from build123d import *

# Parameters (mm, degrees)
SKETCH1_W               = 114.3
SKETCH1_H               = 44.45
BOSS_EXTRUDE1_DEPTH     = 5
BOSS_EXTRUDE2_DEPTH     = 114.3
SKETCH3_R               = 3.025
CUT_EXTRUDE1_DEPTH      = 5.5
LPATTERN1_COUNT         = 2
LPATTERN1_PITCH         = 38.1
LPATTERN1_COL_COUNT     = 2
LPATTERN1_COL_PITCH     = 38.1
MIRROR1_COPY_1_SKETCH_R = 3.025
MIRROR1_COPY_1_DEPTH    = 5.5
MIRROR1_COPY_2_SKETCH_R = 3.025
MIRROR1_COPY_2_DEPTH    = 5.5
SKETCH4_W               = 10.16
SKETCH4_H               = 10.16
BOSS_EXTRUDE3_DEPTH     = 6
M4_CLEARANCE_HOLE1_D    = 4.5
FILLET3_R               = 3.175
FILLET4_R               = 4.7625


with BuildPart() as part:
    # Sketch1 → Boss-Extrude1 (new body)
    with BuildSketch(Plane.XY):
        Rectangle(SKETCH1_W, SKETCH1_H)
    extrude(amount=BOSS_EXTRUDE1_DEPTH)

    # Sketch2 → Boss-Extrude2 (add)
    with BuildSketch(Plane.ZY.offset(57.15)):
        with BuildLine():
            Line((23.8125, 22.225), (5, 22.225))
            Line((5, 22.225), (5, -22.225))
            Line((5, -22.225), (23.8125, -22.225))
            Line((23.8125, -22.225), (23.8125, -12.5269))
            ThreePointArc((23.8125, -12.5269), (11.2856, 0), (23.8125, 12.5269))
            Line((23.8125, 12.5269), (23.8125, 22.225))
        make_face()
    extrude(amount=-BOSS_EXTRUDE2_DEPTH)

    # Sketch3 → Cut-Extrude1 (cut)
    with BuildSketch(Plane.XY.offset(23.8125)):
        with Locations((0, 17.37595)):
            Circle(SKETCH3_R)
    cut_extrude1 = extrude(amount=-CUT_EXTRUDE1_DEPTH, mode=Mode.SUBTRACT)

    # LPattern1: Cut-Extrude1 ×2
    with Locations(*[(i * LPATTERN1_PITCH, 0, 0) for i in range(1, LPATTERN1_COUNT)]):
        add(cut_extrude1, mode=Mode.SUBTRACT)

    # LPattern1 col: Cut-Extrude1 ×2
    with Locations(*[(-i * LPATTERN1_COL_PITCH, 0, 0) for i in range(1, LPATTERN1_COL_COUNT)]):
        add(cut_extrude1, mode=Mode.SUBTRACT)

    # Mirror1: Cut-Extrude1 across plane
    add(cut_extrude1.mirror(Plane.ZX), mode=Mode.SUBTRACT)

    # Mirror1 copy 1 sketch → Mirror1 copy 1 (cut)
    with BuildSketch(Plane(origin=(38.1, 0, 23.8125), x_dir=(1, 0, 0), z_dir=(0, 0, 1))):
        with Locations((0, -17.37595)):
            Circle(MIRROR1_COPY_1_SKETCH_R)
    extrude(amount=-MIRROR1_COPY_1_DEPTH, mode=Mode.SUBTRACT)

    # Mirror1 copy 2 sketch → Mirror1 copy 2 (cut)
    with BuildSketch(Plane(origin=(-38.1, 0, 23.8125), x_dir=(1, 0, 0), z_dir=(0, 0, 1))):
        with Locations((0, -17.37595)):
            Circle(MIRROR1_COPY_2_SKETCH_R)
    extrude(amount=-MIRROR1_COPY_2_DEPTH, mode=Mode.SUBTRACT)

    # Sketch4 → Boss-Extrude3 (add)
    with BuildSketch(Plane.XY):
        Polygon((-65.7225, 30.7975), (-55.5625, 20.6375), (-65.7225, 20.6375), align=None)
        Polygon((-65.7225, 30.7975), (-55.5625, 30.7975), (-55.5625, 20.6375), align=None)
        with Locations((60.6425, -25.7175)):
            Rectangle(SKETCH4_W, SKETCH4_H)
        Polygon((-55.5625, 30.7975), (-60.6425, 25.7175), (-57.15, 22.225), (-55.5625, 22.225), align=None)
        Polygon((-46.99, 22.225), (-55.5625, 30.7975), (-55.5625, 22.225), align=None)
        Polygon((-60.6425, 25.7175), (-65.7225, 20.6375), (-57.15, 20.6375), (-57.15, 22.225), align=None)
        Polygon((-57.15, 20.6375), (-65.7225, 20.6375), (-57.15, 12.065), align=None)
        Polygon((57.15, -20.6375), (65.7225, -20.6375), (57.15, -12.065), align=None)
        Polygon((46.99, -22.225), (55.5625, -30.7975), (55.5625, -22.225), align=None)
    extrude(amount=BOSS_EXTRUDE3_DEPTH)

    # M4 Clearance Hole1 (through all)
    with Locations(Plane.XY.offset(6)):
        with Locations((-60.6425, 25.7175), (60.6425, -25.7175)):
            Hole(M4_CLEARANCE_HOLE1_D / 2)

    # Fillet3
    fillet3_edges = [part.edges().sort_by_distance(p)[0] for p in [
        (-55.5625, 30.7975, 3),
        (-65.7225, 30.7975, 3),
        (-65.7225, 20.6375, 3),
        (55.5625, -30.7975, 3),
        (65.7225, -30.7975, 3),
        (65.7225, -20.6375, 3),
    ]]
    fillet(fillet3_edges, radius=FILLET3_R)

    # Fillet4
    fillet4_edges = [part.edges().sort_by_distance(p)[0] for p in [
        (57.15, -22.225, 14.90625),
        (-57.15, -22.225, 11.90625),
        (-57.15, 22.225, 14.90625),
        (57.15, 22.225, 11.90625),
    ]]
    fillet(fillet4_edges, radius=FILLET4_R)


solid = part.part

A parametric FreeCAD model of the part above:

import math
import FreeCAD as App
import Part
import Sketcher
from FreeCAD import Vector
Q = App.Units.Quantity


def edges_at(feature, points):
    """Names of the edges that pass closest to the given points."""
    edges = feature.Shape.Edges
    near = lambda p: min(range(len(edges)), key=lambda i: edges[i].distToShape(Part.Vertex(*p))[0])
    return sorted({f"Edge{near(p) + 1}" for p in points})

doc = App.newDocument("Part")
body = doc.addObject("PartDesign::Body", "Body")

# Sketch on XY plane
sketch1 = body.newObject("Sketcher::SketchObject", "Sketch")
sketch1.AttachmentSupport = (doc.getObject("XY_Plane"), [""])
sketch1.MapMode = "FlatFace"
sketch1.addGeometry([
    Part.LineSegment(Vector(-57, 22, 0), Vector(-57, -22, 0)),
    Part.LineSegment(Vector(-57, -22, 0), Vector(57, -22, 0)),
    Part.LineSegment(Vector(57, -22, 0), Vector(57, 22, 0)),
    Part.LineSegment(Vector(57, 22, 0), Vector(-57, 22, 0)),
], False)
sketch1.addConstraint([
    Sketcher.Constraint("Coincident", 0, 2, 1, 1),
    Sketcher.Constraint("Coincident", 1, 2, 2, 1),
    Sketcher.Constraint("Coincident", 2, 2, 3, 1),
    Sketcher.Constraint("Coincident", 3, 2, 0, 1),
    Sketcher.Constraint("Vertical", 0),
    Sketcher.Constraint("Horizontal", 1),
    Sketcher.Constraint("Vertical", 2),
    Sketcher.Constraint("Horizontal", 3),
    Sketcher.Constraint("Symmetric", 0, 2, 2, 2, -1, 1),
    Sketcher.Constraint("DistanceX", 1, 1, 1, 2, Q("4.5 in")),
    Sketcher.Constraint("DistanceY", 0, 2, 0, 1, Q("1.75 in")),
])
pad1 = body.newObject("PartDesign::Pad", "Pad")
pad1.Profile = sketch1
pad1.Length = 5

# Sketch on YZ plane
sketch2 = body.newObject("Sketcher::SketchObject", "Sketch001")
sketch2.AttachmentSupport = (doc.getObject("YZ_Plane"), [""])
sketch2.MapMode = "FlatFace"
sketch2.AttachmentOffset = App.Placement(Vector(0, 0, -2.25 * 25.4), App.Rotation())
sketch2.addGeometry([
    Part.LineSegment(Vector(22, 24, 0), Vector(22, 5, 0)),  # 0
    Part.LineSegment(Vector(22, 5, 0), Vector(-22, 5, 0)),  # 1
    Part.LineSegment(Vector(-22, 5, 0), Vector(-22, 24, 0)),  # 2
    Part.LineSegment(Vector(-22, 24, 0), Vector(-13, 24, 0)),  # 3
    Part.ArcOfCircle(Part.Circle(Vector(0, 24, 0), Vector(0, 0, 1), 13), math.radians(180), math.radians(360)),  # 4
    Part.LineSegment(Vector(13, 24, 0), Vector(22, 24, 0)),  # 5
], False)
sketch2.addConstraint([
    Sketcher.Constraint("Coincident", 0, 2, 1, 1),
    Sketcher.Constraint("Coincident", 1, 2, 2, 1),
    Sketcher.Constraint("Coincident", 2, 2, 3, 1),
    Sketcher.Constraint("Coincident", 3, 2, 4, 1),
    Sketcher.Constraint("Coincident", 4, 2, 5, 1),
    Sketcher.Constraint("Coincident", 5, 2, 0, 1),
    Sketcher.Constraint("Vertical", 0),
    Sketcher.Constraint("Horizontal", 1),
    Sketcher.Constraint("Vertical", 2),
    Sketcher.Constraint("Horizontal", 3),
    Sketcher.Constraint("Horizontal", 5),
    Sketcher.Constraint("Symmetric", 3, 2, 4, 2, -2),
    Sketcher.Constraint("Horizontal", 4, 3, 2, 2),
    Sketcher.Constraint("Equal", 3, 5),
    Sketcher.Constraint("DistanceX", 1, 2, 1, 1, Q("1.75 in")),
    Sketcher.Constraint("Radius", 4, 12.5269),
    Sketcher.Constraint("DistanceY", -1, 1, 4, 3, Q("0.9375 in")),
    Sketcher.Constraint("DistanceY", 0, 2, 0, 1, 18.8125),
])
pad2 = body.newObject("PartDesign::Pad", "Pad001")
pad2.Profile = sketch2
pad2.Length = Q("4.5 in")

# Sketch on XY plane
sketch3 = body.newObject("Sketcher::SketchObject", "Sketch002")
sketch3.AttachmentSupport = (doc.getObject("XY_Plane"), [""])
sketch3.MapMode = "FlatFace"
sketch3.AttachmentOffset = App.Placement(Vector(0, 0, 0.9375 * 25.4), App.Rotation())
sketch3.addGeometry(Part.Circle(Vector(0, 17.4, 0), Vector(0, 0, 1), 3), False)
sketch3.addConstraint([
    Sketcher.Constraint("PointOnObject", 0, 3, -2),
    Sketcher.Constraint("Diameter", 0, 6.05),
    Sketcher.Constraint("DistanceY", -1, 1, 0, 3, 17.37595),
])
pocket1 = body.newObject("PartDesign::Pocket", "Pocket")
pocket1.Profile = sketch3
pocket1.Length = 5.5
doc.recompute()

linearpattern = body.newObject("PartDesign::LinearPattern", "LinearPattern")
linearpattern.Originals = [pocket1]
linearpattern.Direction = (doc.getObject("X_Axis"), [""])
linearpattern.Mode = "offset"
linearpattern.Offset = Q("1.5 in")
linearpattern.Occurrences = 2
body.Tip = linearpattern
doc.recompute()

linearpattern2 = body.newObject("PartDesign::LinearPattern", "LinearPattern001")
linearpattern2.Originals = [pocket1]
linearpattern2.Direction = (doc.getObject("X_Axis"), [""])
linearpattern2.Mode = "offset"
linearpattern2.Offset = Q("1.5 in")
linearpattern2.Occurrences = 2
linearpattern2.Reversed = True
body.Tip = linearpattern2
doc.recompute()

mirrored = body.newObject("PartDesign::Mirrored", "Mirrored")
mirrored.Originals = [pocket1]
mirrored.MirrorPlane = (doc.getObject("XZ_Plane"), [""])
body.Tip = mirrored

# Sketch on XY plane
sketch4 = body.newObject("Sketcher::SketchObject", "Sketch003")
sketch4.AttachmentSupport = (doc.getObject("XY_Plane"), [""])
sketch4.MapMode = "FlatFace"
sketch4.AttachmentOffset = App.Placement(Vector(0, 0, 0.9375 * 25.4), App.Rotation())
sketch4.addGeometry(Part.Circle(Vector(38.1, -17.4, 0), Vector(0, 0, 1), 3), False)
sketch4.addConstraint([
    Sketcher.Constraint("DistanceX", -1, 1, 0, 3, Q("1.5 in")),
    Sketcher.Constraint("Diameter", 0, 6.05),
    Sketcher.Constraint("DistanceY", 0, 3, -1, 1, 17.37595),
])
pocket2 = body.newObject("PartDesign::Pocket", "Pocket001")
pocket2.Profile = sketch4
pocket2.Length = 5.5

# Sketch on XY plane
sketch5 = body.newObject("Sketcher::SketchObject", "Sketch004")
sketch5.AttachmentSupport = (doc.getObject("XY_Plane"), [""])
sketch5.MapMode = "FlatFace"
sketch5.AttachmentOffset = App.Placement(Vector(0, 0, 0.9375 * 25.4), App.Rotation())
sketch5.addGeometry(Part.Circle(Vector(-38.1, -17.4, 0), Vector(0, 0, 1), 3), False)
sketch5.addConstraint([
    Sketcher.Constraint("DistanceX", 0, 3, -1, 1, Q("1.5 in")),
    Sketcher.Constraint("Diameter", 0, 6.05),
    Sketcher.Constraint("DistanceY", 0, 3, -1, 1, 17.37595),
])
pocket3 = body.newObject("PartDesign::Pocket", "Pocket002")
pocket3.Profile = sketch5
pocket3.Length = 5.5

# Sketch on XY plane
sketch6 = body.newObject("Sketcher::SketchObject", "Sketch005")
sketch6.AttachmentSupport = (doc.getObject("XY_Plane"), [""])
sketch6.MapMode = "FlatFace"
sketch6.addGeometry([
    Part.LineSegment(Vector(-55.6, 20.6, 0), Vector(-55.6, 22.2, 0)),  # 0
    Part.LineSegment(Vector(-55.6, 22.2, 0), Vector(-47, 22.2, 0)),  # 1
    Part.LineSegment(Vector(-47, 22.2, 0), Vector(-55.6, 30.8, 0)),  # 2
    Part.LineSegment(Vector(-55.6, 30.8, 0), Vector(-65.7, 30.8, 0)),  # 3
    Part.LineSegment(Vector(-65.7, 30.8, 0), Vector(-65.7, 20.6, 0)),  # 4
    Part.LineSegment(Vector(-65.7, 20.6, 0), Vector(-57.1, 12.1, 0)),  # 5
    Part.LineSegment(Vector(-57.1, 12.1, 0), Vector(-57.1, 20.6, 0)),  # 6
    Part.LineSegment(Vector(-57.1, 20.6, 0), Vector(-55.6, 20.6, 0)),  # 7
    Part.LineSegment(Vector(55.6, -20.6, 0), Vector(55.6, -22.2, 0)),  # 8
    Part.LineSegment(Vector(55.6, -22.2, 0), Vector(47, -22.2, 0)),  # 9
    Part.LineSegment(Vector(47, -22.2, 0), Vector(55.6, -30.8, 0)),  # 10
    Part.LineSegment(Vector(55.6, -30.8, 0), Vector(65.7, -30.8, 0)),  # 11
    Part.LineSegment(Vector(65.7, -30.8, 0), Vector(65.7, -20.6, 0)),  # 12
    Part.LineSegment(Vector(65.7, -20.6, 0), Vector(57.1, -12.1, 0)),  # 13
    Part.LineSegment(Vector(57.1, -12.1, 0), Vector(57.1, -20.6, 0)),  # 14
    Part.LineSegment(Vector(57.1, -20.6, 0), Vector(55.6, -20.6, 0)),  # 15
], False)
sketch6.addConstraint([
    Sketcher.Constraint("Coincident", 0, 2, 1, 1),
    Sketcher.Constraint("Coincident", 1, 2, 2, 1),
    Sketcher.Constraint("Coincident", 2, 2, 3, 1),
    Sketcher.Constraint("Coincident", 3, 2, 4, 1),
    Sketcher.Constraint("Coincident", 4, 2, 5, 1),
    Sketcher.Constraint("Coincident", 5, 2, 6, 1),
    Sketcher.Constraint("Coincident", 6, 2, 7, 1),
    Sketcher.Constraint("Coincident", 7, 2, 0, 1),
    Sketcher.Constraint("Coincident", 8, 2, 9, 1),
    Sketcher.Constraint("Coincident", 9, 2, 10, 1),
    Sketcher.Constraint("Coincident", 10, 2, 11, 1),
    Sketcher.Constraint("Coincident", 11, 2, 12, 1),
    Sketcher.Constraint("Coincident", 12, 2, 13, 1),
    Sketcher.Constraint("Coincident", 13, 2, 14, 1),
    Sketcher.Constraint("Coincident", 14, 2, 15, 1),
    Sketcher.Constraint("Coincident", 15, 2, 8, 1),
    Sketcher.Constraint("Vertical", 0),
    Sketcher.Constraint("Horizontal", 1),
    Sketcher.Constraint("Horizontal", 3),
    Sketcher.Constraint("Vertical", 4),
    Sketcher.Constraint("Vertical", 6),
    Sketcher.Constraint("Horizontal", 7),
    Sketcher.Constraint("Vertical", 8),
    Sketcher.Constraint("Horizontal", 9),
    Sketcher.Constraint("Horizontal", 11),
    Sketcher.Constraint("Vertical", 12),
    Sketcher.Constraint("Vertical", 14),
    Sketcher.Constraint("Horizontal", 15),
    Sketcher.Constraint("Symmetric", 0, 2, 8, 2, -1, 1),
    Sketcher.Constraint("Symmetric", 2, 2, 10, 2, -1, 1),
    Sketcher.Constraint("Symmetric", 4, 2, 12, 2, -1, 1),
    Sketcher.Constraint("Symmetric", 5, 2, 13, 2, -1, 1),
    Sketcher.Constraint("Parallel", 2, 5),
    Sketcher.Constraint("Parallel", 5, 10),
    Sketcher.Constraint("Horizontal", 4, 2, 6, 2),
    Sketcher.Constraint("Horizontal", 12, 2, 14, 2),
    Sketcher.Constraint("Vertical", 0, 2, 2, 2),
    Sketcher.Constraint("Equal", 15, 0),
    Sketcher.Constraint("Equal", 11, 4),
    Sketcher.Constraint("Equal", 9, 6),
    Sketcher.Constraint("DistanceX", 3, 2, 3, 1, Q("0.4 in")),
    Sketcher.Constraint("DistanceX", 1, 2, 9, 2, Q("3.7 in")),
    Sketcher.Constraint("DistanceX", 7, 1, 7, 2, Q("0.0625 in")),
    Sketcher.Constraint("DistanceY", 8, 2, 1, 2, Q("1.75 in")),
])
pad3 = body.newObject("PartDesign::Pad", "Pad002")
pad3.Profile = sketch6
pad3.Length = 6

# Sketch on XY plane
sketch7 = body.newObject("Sketcher::SketchObject", "Sketch006")
sketch7.AttachmentSupport = (doc.getObject("XY_Plane"), [""])
sketch7.MapMode = "FlatFace"
sketch7.AttachmentOffset = App.Placement(Vector(0, 0, 6), App.Rotation())
sketch7.addGeometry([
    Part.Circle(Vector(-60.6, 25.7, 0), Vector(0, 0, 1), 2.2),
    Part.Circle(Vector(60.6, -25.7, 0), Vector(0, 0, 1), 2.2),
], False)
sketch7.addConstraint([
    Sketcher.Constraint("Equal", 0, 1),
    Sketcher.Constraint("Symmetric", 0, 3, 1, 3, -1, 1),
    Sketcher.Constraint("Diameter", 0, 4.5),
    Sketcher.Constraint("DistanceX", 0, 3, 1, 3, Q("4.775 in")),
    Sketcher.Constraint("DistanceY", 1, 3, 0, 3, Q("2.025 in")),
])
doc.recompute()
hole = body.newObject("PartDesign::Hole", "Hole")
hole.Profile = sketch7
hole.ThreadType = "None"
hole.Diameter = 4.5
hole.DepthType = "ThroughAll"
doc.recompute()

fillet = body.newObject("PartDesign::Fillet", "Fillet")
fillet.Base = (hole, edges_at(hole, [
    (-55.562, 30.797, 3),
    (-65.722, 30.797, 3),
    (-65.722, 20.637, 3),
    (55.562, -30.797, 3),
    (65.722, -30.797, 3),
    (65.722, -20.637, 3),
]))
fillet.Radius = Q("0.125 in")
doc.recompute()

fillet2 = body.newObject("PartDesign::Fillet", "Fillet001")
fillet2.Base = (fillet, edges_at(fillet, [
    (57.15, -22.225, 14.906),
    (-57.15, -22.225, 11.906),
    (-57.15, 22.225, 14.906),
    (57.15, 22.225, 11.906),
]))
fillet2.Radius = Q("0.1875 in")

doc.recompute()
